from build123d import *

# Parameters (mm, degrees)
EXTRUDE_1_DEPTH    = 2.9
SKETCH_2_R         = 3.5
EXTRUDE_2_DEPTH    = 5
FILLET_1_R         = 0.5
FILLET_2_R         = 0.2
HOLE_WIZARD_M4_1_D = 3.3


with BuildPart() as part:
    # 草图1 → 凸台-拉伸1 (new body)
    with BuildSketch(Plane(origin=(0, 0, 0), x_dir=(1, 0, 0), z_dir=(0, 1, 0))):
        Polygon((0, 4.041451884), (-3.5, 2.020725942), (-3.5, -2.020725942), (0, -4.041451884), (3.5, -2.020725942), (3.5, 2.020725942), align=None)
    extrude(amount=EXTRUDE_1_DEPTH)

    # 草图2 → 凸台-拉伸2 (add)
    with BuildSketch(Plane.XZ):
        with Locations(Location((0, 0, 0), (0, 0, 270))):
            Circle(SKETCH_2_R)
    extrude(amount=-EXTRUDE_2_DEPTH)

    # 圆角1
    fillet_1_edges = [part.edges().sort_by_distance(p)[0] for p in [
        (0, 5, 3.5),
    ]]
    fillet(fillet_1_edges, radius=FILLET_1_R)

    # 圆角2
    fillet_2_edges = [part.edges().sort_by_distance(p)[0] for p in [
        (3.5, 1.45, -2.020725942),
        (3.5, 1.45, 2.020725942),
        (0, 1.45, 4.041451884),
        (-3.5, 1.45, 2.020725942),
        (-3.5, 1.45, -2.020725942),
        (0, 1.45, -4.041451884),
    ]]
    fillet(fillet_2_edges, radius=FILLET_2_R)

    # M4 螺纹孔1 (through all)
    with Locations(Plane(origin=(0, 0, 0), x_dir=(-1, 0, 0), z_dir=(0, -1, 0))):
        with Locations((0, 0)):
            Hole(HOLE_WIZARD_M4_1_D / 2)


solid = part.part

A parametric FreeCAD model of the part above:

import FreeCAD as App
import Part
import Sketcher
Q = App.Units.Quantity


def edges_at(feature, points):
    """Names of the edges that pass closest to the given points."""
    edges = feature.Shape.Edges
    near = lambda p: min(range(len(edges)), key=lambda i: edges[i].distToShape(Part.Vertex(*p))[0])
    return sorted({f"Edge{near(p) + 1}" for p in points})

doc = App.newDocument("Part")
params = doc.addObject("Spreadsheet::Sheet", "Params")
for row, (alias, value) in enumerate([
    ("pad1_length", "2.9 mm"),
    ("sketch2_diameter", "7 mm"),
    ("pad2_length", "5 mm"),
    ("fillet_radius", "0.5 mm"),
    ("fillet2_radius", "0.2 mm"),
    ("sketch3_diameter", "3.3 mm"),
    ("hole_diameter", "3.3 mm"),
], start=1):
    params.set(f"A{row}", alias)
    params.set(f"B{row}", "=" + value)
    params.setAlias(f"B{row}", alias)

body = doc.addObject("PartDesign::Body", "Body")

# Sketch on XZ plane
sketch1 = doc.addObject("Sketcher::SketchObject", "Sketch")
body.addObject(sketch1)
sketch1.AttachmentSupport = (doc.XZ_Plane, [""])
sketch1.MapMode = "FlatFace"
sketch1.addGeometry(Part.LineSegment(App.Vector(0, -4, 0), App.Vector(-3.5, -2, 0)), False)
sketch1.addGeometry(Part.LineSegment(App.Vector(-3.5, -2, 0), App.Vector(-3.5, 2, 0)), False)
sketch1.addGeometry(Part.LineSegment(App.Vector(-3.5, 2, 0), App.Vector(0, 4, 0)), False)
sketch1.addGeometry(Part.LineSegment(App.Vector(0, 4, 0), App.Vector(3.5, 2, 0)), False)
sketch1.addGeometry(Part.LineSegment(App.Vector(3.5, 2, 0), App.Vector(3.5, -2, 0)), False)
sketch1.addGeometry(Part.LineSegment(App.Vector(3.5, -2, 0), App.Vector(0, -4, 0)), False)
sketch1.addConstraint(Sketcher.Constraint("Coincident", 0, 2, 1, 1))
sketch1.addConstraint(Sketcher.Constraint("Coincident", 1, 2, 2, 1))
sketch1.addConstraint(Sketcher.Constraint("Coincident", 2, 2, 3, 1))
sketch1.addConstraint(Sketcher.Constraint("Coincident", 3, 2, 4, 1))
sketch1.addConstraint(Sketcher.Constraint("Coincident", 4, 2, 5, 1))
sketch1.addConstraint(Sketcher.Constraint("Coincident", 5, 2, 0, 1))
sketch1.addConstraint(Sketcher.Constraint("Vertical", 1))
sketch1.addConstraint(Sketcher.Constraint("Vertical", 4))
sketch1.addConstraint(Sketcher.Constraint("Symmetric", 0, 2, 3, 2, -1, 1))
sketch1.addConstraint(Sketcher.Constraint("Symmetric", 2, 2, 5, 2, -1, 1))
sketch1.addConstraint(Sketcher.Constraint("PointOnObject", 2, 2, -2))
sketch1.addConstraint(Sketcher.Constraint("Parallel", 2, 5))
sketch1.addConstraint(Sketcher.Constraint("Horizontal", 1, 2, 3, 2))
sketch1.addConstraint(Sketcher.Constraint("Angle", 0, Q("150 deg")))
sketch1.addConstraint(Sketcher.Constraint("DistanceX", 1, 2, 3, 2, Q("7 mm")))
sketch1.addConstraint(Sketcher.Constraint("DistanceY", 1, 1, 1, 2, Q("4.041452 mm")))
pad1 = doc.addObject("PartDesign::Pad", "Pad")
body.addObject(pad1)
pad1.Profile = sketch1
pad1.setExpression("Length", "Params.pad1_length")
pad1.Reversed = True

# Sketch on XZ plane
sketch2 = doc.addObject("Sketcher::SketchObject", "Sketch001")
body.addObject(sketch2)
sketch2.AttachmentSupport = (doc.XZ_Plane, [""])
sketch2.MapMode = "FlatFace"
sketch2.addGeometry(Part.Circle(App.Vector(0, 0, 0), App.Vector(0, 0, 1), 3.5), False)
sketch2.addConstraint(Sketcher.Constraint("Coincident", 0, 3, -1, 1))
sketch2.addConstraint(Sketcher.Constraint("Diameter", 0, Q("7 mm")))
sketch2.setExpression("Constraints[1]", "Params.sketch2_diameter")
pad2 = doc.addObject("PartDesign::Pad", "Pad001")
body.addObject(pad2)
pad2.Profile = sketch2
pad2.setExpression("Length", "Params.pad2_length")
pad2.Reversed = True
doc.recompute()

fillet = doc.addObject("PartDesign::Fillet", "Fillet")
body.addObject(fillet)
fillet.Base = (pad2, edges_at(pad2, [(0, 5, 3.5)]))
fillet.setExpression("Radius", "Params.fillet_radius")
doc.recompute()

fillet2 = doc.addObject("PartDesign::Fillet", "Fillet001")
body.addObject(fillet2)
fillet2.Base = (fillet, edges_at(fillet, [
    (3.5, 1.45, -2.021),
    (3.5, 1.45, 2.021),
    (0, 1.45, 4.041),
    (-3.5, 1.45, 2.021),
    (-3.5, 1.45, -2.021),
    (0, 1.45, -4.041),
]))
fillet2.setExpression("Radius", "Params.fillet2_radius")

# Sketch on XZ plane
sketch3 = doc.addObject("Sketcher::SketchObject", "Sketch002")
body.addObject(sketch3)
sketch3.AttachmentSupport = (doc.XZ_Plane, [""])
sketch3.MapMode = "FlatFace"
sketch3.addGeometry(Part.Circle(App.Vector(0, 0, 0), App.Vector(0, 0, 1), 1.6), False)
sketch3.addConstraint(Sketcher.Constraint("Coincident", 0, 3, -1, 1))
sketch3.addConstraint(Sketcher.Constraint("Diameter", 0, Q("3.3 mm")))
sketch3.setExpression("Constraints[1]", "Params.sketch3_diameter")
doc.recompute()
hole = doc.addObject("PartDesign::Hole", "Hole")
body.addObject(hole)
hole.Profile = sketch3
hole.ThreadType = "None"
hole.setExpression("Diameter", "Params.hole_diameter")
hole.DepthType = "ThroughAll"

doc.recompute()
